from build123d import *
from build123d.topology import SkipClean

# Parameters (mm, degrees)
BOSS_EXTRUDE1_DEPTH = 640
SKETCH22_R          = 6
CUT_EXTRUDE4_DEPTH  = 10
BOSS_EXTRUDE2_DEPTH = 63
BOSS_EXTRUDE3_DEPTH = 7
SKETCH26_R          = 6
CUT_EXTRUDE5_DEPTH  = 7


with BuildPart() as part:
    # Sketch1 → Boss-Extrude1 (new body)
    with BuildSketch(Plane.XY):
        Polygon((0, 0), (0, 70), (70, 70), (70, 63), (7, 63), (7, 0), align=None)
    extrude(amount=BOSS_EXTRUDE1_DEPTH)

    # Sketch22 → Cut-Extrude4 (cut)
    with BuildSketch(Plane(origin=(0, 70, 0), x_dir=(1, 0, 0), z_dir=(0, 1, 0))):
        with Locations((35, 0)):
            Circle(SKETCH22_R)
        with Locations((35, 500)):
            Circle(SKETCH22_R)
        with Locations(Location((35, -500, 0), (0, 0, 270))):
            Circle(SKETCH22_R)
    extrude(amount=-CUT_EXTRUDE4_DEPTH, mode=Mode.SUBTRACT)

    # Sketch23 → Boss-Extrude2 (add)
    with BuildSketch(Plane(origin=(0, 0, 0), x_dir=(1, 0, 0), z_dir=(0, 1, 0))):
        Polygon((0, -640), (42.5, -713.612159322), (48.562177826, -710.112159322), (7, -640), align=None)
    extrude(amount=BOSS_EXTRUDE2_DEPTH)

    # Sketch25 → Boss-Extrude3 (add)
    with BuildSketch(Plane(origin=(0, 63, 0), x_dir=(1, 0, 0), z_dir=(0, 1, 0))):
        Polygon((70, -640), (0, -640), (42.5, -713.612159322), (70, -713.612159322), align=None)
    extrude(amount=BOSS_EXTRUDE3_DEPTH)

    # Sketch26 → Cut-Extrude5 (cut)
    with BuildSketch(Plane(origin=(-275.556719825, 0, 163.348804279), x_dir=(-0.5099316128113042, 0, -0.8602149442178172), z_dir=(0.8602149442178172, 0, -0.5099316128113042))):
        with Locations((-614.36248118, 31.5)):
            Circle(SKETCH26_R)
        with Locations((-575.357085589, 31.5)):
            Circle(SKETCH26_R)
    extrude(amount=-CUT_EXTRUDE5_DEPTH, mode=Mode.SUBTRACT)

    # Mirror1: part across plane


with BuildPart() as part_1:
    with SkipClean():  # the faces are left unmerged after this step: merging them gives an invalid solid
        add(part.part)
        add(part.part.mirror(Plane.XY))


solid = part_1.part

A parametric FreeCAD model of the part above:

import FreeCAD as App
import Part
import Sketcher
from FreeCAD import Vector
Q = App.Units.Quantity

doc = App.newDocument("Part")
body = doc.addObject("PartDesign::Body", "Body")

# Sketch on XY plane
sketch1 = body.newObject("Sketcher::SketchObject", "Sketch")
sketch1.AttachmentSupport = (doc.getObject("XY_Plane"), [""])
sketch1.MapMode = "FlatFace"
sketch1.addGeometry([
    Part.LineSegment(Vector(0, 70, 0), Vector(0, 0, 0)),  # 0
    Part.LineSegment(Vector(0, 0, 0), Vector(7, 0, 0)),  # 1
    Part.LineSegment(Vector(7, 0, 0), Vector(7, 63, 0)),  # 2
    Part.LineSegment(Vector(7, 63, 0), Vector(70, 63, 0)),  # 3
    Part.LineSegment(Vector(70, 63, 0), Vector(70, 70, 0)),  # 4
    Part.LineSegment(Vector(70, 70, 0), Vector(0, 70, 0)),  # 5
], False)
sketch1.addConstraint([
    Sketcher.Constraint("Coincident", 0, 2, 1, 1),
    Sketcher.Constraint("Coincident", 1, 2, 2, 1),
    Sketcher.Constraint("Coincident", 2, 2, 3, 1),
    Sketcher.Constraint("Coincident", 3, 2, 4, 1),
    Sketcher.Constraint("Coincident", 4, 2, 5, 1),
    Sketcher.Constraint("Coincident", 5, 2, 0, 1),
    Sketcher.Constraint("Vertical", 0),
    Sketcher.Constraint("Horizontal", 1),
    Sketcher.Constraint("Vertical", 2),
    Sketcher.Constraint("Horizontal", 3),
    Sketcher.Constraint("Vertical", 4),
    Sketcher.Constraint("Horizontal", 5),
    Sketcher.Constraint("Coincident", 0, 2, -1, 1),
    Sketcher.Constraint("Equal", 5, 0),
    Sketcher.Constraint("Equal", 3, 2),
    Sketcher.Constraint("DistanceX", 1, 1, 1, 2, 7.0),
    Sketcher.Constraint("DistanceX", 3, 1, 3, 2, 63.0),
])
pad1 = body.newObject("PartDesign::Pad", "Pad")
pad1.Profile = sketch1
pad1.Length = 640

# Sketch on XZ plane
sketch2 = body.newObject("Sketcher::SketchObject", "Sketch001")
sketch2.AttachmentSupport = (doc.getObject("XZ_Plane"), [""])
sketch2.MapMode = "FlatFace"
sketch2.AttachmentOffset = App.Placement(Vector(0, 0, -70), App.Rotation())
sketch2.addGeometry([
    Part.Circle(Vector(35, 0, 0), Vector(0, 0, 1), 6),
    Part.Circle(Vector(35, -500, 0), Vector(0, 0, 1), 6),
    Part.Circle(Vector(35, 500, 0), Vector(0, 0, 1), 6),
], False)
sketch2.addConstraint([
    Sketcher.Constraint("Equal", 0, 1),
    Sketcher.Constraint("Equal", 1, 2),
    Sketcher.Constraint("Symmetric", 1, 3, 2, 3, -1),
    Sketcher.Constraint("PointOnObject", 0, 3, -1),
    Sketcher.Constraint("Vertical", 0, 3, 1, 3),
    Sketcher.Constraint("Diameter", 0, 12.0),
    Sketcher.Constraint("DistanceX", -1, 1, 0, 3, 35.0),
    Sketcher.Constraint("DistanceY", 1, 3, -1, 1, 500.0),
])
pocket1 = body.newObject("PartDesign::Pocket", "Pocket")
pocket1.Profile = sketch2
pocket1.Length = 10
pocket1.Reversed = True

# Sketch on XZ plane
sketch3 = body.newObject("Sketcher::SketchObject", "Sketch002")
sketch3.AttachmentSupport = (doc.getObject("XZ_Plane"), [""])
sketch3.MapMode = "FlatFace"
sketch3.addGeometry([
    Part.LineSegment(Vector(0, 640, 0), Vector(42.5, 713.612159, 0)),
    Part.LineSegment(Vector(42.5, 713.612159, 0), Vector(48.562178, 710.112159, 0)),
    Part.LineSegment(Vector(48.562178, 710.112159, 0), Vector(7, 640, 0)),
    Part.LineSegment(Vector(7, 640, 0), Vector(0, 640, 0)),
], False)
sketch3.addConstraint([
    Sketcher.Constraint("Coincident", 0, 2, 1, 1),
    Sketcher.Constraint("Coincident", 1, 2, 2, 1),
    Sketcher.Constraint("Coincident", 2, 2, 3, 1),
    Sketcher.Constraint("Coincident", 3, 2, 0, 1),
    Sketcher.Constraint("Horizontal", 3),
    Sketcher.Constraint("PointOnObject", 3, 2, -2),
    Sketcher.Constraint("Perpendicular", 0, 1),
    Sketcher.Constraint("DistanceX", 3, 2, 3, 1, 7.0),
    Sketcher.Constraint("Angle", 0, Q("60 deg")),
    Sketcher.Constraint("Distance", 0, 85.0),
    Sketcher.Constraint("Distance", 1, 7.0),
    Sketcher.Constraint("DistanceY", -1, 1, 2, 2, 640.0),
])
pad2 = body.newObject("PartDesign::Pad", "Pad001")
pad2.Profile = sketch3
pad2.Length = 63
pad2.Reversed = True

# Sketch on XZ plane
sketch4 = body.newObject("Sketcher::SketchObject", "Sketch003")
sketch4.AttachmentSupport = (doc.getObject("XZ_Plane"), [""])
sketch4.MapMode = "FlatFace"
sketch4.AttachmentOffset = App.Placement(Vector(0, 0, -63), App.Rotation())
sketch4.addGeometry([
    Part.LineSegment(Vector(70, 640, 0), Vector(0, 640, 0)),
    Part.LineSegment(Vector(0, 640, 0), Vector(42.5, 713.612159, 0)),
    Part.LineSegment(Vector(42.5, 713.612159, 0), Vector(70, 713.612159, 0)),
    Part.LineSegment(Vector(70, 713.612159, 0), Vector(70, 640, 0)),
], False)
sketch4.addConstraint([
    Sketcher.Constraint("Coincident", 0, 2, 1, 1),
    Sketcher.Constraint("Coincident", 1, 2, 2, 1),
    Sketcher.Constraint("Coincident", 2, 2, 3, 1),
    Sketcher.Constraint("Coincident", 3, 2, 0, 1),
    Sketcher.Constraint("Horizontal", 0),
    Sketcher.Constraint("Horizontal", 2),
    Sketcher.Constraint("Vertical", 3),
    Sketcher.Constraint("PointOnObject", 0, 2, -2),
    Sketcher.Constraint("DistanceX", 0, 2, 0, 1, 70.0),
    Sketcher.Constraint("Angle", 1, Q("60 deg")),
    Sketcher.Constraint("Distance", 1, 85.0),
    Sketcher.Constraint("DistanceY", -1, 1, 0, 2, 640.0),
])
pad3 = body.newObject("PartDesign::Pad", "Pad002")
pad3.Profile = sketch4
pad3.Length = 7
pad3.Reversed = True

# Sketch on an angled plane
sketch5 = body.newObject("Sketcher::SketchObject", "Sketch004")
sketch5.Placement = App.Placement(Vector(-275.55672, 0, 163.348804), App.Rotation(Vector(-0.509931613, 0, -0.860214944), Vector(0, 1, 0), Vector(0.860214944, 0, -0.509931613), "ZXY"))
sketch5.addGeometry([
    Part.Circle(Vector(-614.362481, 31.5, 0), Vector(0, 0, 1), 6),
    Part.Circle(Vector(-575.357085, 31.5, 0), Vector(0, 0, 1), 6),
], False)
sketch5.addConstraint([
    Sketcher.Constraint("Equal", 0, 1),
    Sketcher.Constraint("Horizontal", 0, 3, 1, 3),
    Sketcher.Constraint("Diameter", 0, 12.0),
    Sketcher.Constraint("DistanceY", -1, 1, 0, 3, 31.5),
    Sketcher.Constraint("DistanceX", 0, 3, -1, 1, 614.362481),
    Sketcher.Constraint("DistanceX", 1, 3, -1, 1, 575.357085),
])
pocket2 = body.newObject("PartDesign::Pocket", "Pocket001")
pocket2.Profile = sketch5
pocket2.Length = 7
body2 = doc.addObject("PartDesign::Body", "Body001")
doc.recompute()

body2.BaseFeature = body
doc.recompute()

mirroring = doc.addObject("Part::Mirroring", "Mirroring")
mirroring.Source = body
mirroring.Base = Vector(0, 0, 0)
mirroring.Normal = Vector(0, 0, 1)
body3 = doc.addObject("PartDesign::Body", "Body002")
body3.BaseFeature = mirroring
boolean = body2.newObject("PartDesign::Boolean", "Boolean")
boolean.Type = "Fuse"
boolean.addObjects([body3])
doc.recompute()
mirroring.Visibility = False

doc.recompute()
